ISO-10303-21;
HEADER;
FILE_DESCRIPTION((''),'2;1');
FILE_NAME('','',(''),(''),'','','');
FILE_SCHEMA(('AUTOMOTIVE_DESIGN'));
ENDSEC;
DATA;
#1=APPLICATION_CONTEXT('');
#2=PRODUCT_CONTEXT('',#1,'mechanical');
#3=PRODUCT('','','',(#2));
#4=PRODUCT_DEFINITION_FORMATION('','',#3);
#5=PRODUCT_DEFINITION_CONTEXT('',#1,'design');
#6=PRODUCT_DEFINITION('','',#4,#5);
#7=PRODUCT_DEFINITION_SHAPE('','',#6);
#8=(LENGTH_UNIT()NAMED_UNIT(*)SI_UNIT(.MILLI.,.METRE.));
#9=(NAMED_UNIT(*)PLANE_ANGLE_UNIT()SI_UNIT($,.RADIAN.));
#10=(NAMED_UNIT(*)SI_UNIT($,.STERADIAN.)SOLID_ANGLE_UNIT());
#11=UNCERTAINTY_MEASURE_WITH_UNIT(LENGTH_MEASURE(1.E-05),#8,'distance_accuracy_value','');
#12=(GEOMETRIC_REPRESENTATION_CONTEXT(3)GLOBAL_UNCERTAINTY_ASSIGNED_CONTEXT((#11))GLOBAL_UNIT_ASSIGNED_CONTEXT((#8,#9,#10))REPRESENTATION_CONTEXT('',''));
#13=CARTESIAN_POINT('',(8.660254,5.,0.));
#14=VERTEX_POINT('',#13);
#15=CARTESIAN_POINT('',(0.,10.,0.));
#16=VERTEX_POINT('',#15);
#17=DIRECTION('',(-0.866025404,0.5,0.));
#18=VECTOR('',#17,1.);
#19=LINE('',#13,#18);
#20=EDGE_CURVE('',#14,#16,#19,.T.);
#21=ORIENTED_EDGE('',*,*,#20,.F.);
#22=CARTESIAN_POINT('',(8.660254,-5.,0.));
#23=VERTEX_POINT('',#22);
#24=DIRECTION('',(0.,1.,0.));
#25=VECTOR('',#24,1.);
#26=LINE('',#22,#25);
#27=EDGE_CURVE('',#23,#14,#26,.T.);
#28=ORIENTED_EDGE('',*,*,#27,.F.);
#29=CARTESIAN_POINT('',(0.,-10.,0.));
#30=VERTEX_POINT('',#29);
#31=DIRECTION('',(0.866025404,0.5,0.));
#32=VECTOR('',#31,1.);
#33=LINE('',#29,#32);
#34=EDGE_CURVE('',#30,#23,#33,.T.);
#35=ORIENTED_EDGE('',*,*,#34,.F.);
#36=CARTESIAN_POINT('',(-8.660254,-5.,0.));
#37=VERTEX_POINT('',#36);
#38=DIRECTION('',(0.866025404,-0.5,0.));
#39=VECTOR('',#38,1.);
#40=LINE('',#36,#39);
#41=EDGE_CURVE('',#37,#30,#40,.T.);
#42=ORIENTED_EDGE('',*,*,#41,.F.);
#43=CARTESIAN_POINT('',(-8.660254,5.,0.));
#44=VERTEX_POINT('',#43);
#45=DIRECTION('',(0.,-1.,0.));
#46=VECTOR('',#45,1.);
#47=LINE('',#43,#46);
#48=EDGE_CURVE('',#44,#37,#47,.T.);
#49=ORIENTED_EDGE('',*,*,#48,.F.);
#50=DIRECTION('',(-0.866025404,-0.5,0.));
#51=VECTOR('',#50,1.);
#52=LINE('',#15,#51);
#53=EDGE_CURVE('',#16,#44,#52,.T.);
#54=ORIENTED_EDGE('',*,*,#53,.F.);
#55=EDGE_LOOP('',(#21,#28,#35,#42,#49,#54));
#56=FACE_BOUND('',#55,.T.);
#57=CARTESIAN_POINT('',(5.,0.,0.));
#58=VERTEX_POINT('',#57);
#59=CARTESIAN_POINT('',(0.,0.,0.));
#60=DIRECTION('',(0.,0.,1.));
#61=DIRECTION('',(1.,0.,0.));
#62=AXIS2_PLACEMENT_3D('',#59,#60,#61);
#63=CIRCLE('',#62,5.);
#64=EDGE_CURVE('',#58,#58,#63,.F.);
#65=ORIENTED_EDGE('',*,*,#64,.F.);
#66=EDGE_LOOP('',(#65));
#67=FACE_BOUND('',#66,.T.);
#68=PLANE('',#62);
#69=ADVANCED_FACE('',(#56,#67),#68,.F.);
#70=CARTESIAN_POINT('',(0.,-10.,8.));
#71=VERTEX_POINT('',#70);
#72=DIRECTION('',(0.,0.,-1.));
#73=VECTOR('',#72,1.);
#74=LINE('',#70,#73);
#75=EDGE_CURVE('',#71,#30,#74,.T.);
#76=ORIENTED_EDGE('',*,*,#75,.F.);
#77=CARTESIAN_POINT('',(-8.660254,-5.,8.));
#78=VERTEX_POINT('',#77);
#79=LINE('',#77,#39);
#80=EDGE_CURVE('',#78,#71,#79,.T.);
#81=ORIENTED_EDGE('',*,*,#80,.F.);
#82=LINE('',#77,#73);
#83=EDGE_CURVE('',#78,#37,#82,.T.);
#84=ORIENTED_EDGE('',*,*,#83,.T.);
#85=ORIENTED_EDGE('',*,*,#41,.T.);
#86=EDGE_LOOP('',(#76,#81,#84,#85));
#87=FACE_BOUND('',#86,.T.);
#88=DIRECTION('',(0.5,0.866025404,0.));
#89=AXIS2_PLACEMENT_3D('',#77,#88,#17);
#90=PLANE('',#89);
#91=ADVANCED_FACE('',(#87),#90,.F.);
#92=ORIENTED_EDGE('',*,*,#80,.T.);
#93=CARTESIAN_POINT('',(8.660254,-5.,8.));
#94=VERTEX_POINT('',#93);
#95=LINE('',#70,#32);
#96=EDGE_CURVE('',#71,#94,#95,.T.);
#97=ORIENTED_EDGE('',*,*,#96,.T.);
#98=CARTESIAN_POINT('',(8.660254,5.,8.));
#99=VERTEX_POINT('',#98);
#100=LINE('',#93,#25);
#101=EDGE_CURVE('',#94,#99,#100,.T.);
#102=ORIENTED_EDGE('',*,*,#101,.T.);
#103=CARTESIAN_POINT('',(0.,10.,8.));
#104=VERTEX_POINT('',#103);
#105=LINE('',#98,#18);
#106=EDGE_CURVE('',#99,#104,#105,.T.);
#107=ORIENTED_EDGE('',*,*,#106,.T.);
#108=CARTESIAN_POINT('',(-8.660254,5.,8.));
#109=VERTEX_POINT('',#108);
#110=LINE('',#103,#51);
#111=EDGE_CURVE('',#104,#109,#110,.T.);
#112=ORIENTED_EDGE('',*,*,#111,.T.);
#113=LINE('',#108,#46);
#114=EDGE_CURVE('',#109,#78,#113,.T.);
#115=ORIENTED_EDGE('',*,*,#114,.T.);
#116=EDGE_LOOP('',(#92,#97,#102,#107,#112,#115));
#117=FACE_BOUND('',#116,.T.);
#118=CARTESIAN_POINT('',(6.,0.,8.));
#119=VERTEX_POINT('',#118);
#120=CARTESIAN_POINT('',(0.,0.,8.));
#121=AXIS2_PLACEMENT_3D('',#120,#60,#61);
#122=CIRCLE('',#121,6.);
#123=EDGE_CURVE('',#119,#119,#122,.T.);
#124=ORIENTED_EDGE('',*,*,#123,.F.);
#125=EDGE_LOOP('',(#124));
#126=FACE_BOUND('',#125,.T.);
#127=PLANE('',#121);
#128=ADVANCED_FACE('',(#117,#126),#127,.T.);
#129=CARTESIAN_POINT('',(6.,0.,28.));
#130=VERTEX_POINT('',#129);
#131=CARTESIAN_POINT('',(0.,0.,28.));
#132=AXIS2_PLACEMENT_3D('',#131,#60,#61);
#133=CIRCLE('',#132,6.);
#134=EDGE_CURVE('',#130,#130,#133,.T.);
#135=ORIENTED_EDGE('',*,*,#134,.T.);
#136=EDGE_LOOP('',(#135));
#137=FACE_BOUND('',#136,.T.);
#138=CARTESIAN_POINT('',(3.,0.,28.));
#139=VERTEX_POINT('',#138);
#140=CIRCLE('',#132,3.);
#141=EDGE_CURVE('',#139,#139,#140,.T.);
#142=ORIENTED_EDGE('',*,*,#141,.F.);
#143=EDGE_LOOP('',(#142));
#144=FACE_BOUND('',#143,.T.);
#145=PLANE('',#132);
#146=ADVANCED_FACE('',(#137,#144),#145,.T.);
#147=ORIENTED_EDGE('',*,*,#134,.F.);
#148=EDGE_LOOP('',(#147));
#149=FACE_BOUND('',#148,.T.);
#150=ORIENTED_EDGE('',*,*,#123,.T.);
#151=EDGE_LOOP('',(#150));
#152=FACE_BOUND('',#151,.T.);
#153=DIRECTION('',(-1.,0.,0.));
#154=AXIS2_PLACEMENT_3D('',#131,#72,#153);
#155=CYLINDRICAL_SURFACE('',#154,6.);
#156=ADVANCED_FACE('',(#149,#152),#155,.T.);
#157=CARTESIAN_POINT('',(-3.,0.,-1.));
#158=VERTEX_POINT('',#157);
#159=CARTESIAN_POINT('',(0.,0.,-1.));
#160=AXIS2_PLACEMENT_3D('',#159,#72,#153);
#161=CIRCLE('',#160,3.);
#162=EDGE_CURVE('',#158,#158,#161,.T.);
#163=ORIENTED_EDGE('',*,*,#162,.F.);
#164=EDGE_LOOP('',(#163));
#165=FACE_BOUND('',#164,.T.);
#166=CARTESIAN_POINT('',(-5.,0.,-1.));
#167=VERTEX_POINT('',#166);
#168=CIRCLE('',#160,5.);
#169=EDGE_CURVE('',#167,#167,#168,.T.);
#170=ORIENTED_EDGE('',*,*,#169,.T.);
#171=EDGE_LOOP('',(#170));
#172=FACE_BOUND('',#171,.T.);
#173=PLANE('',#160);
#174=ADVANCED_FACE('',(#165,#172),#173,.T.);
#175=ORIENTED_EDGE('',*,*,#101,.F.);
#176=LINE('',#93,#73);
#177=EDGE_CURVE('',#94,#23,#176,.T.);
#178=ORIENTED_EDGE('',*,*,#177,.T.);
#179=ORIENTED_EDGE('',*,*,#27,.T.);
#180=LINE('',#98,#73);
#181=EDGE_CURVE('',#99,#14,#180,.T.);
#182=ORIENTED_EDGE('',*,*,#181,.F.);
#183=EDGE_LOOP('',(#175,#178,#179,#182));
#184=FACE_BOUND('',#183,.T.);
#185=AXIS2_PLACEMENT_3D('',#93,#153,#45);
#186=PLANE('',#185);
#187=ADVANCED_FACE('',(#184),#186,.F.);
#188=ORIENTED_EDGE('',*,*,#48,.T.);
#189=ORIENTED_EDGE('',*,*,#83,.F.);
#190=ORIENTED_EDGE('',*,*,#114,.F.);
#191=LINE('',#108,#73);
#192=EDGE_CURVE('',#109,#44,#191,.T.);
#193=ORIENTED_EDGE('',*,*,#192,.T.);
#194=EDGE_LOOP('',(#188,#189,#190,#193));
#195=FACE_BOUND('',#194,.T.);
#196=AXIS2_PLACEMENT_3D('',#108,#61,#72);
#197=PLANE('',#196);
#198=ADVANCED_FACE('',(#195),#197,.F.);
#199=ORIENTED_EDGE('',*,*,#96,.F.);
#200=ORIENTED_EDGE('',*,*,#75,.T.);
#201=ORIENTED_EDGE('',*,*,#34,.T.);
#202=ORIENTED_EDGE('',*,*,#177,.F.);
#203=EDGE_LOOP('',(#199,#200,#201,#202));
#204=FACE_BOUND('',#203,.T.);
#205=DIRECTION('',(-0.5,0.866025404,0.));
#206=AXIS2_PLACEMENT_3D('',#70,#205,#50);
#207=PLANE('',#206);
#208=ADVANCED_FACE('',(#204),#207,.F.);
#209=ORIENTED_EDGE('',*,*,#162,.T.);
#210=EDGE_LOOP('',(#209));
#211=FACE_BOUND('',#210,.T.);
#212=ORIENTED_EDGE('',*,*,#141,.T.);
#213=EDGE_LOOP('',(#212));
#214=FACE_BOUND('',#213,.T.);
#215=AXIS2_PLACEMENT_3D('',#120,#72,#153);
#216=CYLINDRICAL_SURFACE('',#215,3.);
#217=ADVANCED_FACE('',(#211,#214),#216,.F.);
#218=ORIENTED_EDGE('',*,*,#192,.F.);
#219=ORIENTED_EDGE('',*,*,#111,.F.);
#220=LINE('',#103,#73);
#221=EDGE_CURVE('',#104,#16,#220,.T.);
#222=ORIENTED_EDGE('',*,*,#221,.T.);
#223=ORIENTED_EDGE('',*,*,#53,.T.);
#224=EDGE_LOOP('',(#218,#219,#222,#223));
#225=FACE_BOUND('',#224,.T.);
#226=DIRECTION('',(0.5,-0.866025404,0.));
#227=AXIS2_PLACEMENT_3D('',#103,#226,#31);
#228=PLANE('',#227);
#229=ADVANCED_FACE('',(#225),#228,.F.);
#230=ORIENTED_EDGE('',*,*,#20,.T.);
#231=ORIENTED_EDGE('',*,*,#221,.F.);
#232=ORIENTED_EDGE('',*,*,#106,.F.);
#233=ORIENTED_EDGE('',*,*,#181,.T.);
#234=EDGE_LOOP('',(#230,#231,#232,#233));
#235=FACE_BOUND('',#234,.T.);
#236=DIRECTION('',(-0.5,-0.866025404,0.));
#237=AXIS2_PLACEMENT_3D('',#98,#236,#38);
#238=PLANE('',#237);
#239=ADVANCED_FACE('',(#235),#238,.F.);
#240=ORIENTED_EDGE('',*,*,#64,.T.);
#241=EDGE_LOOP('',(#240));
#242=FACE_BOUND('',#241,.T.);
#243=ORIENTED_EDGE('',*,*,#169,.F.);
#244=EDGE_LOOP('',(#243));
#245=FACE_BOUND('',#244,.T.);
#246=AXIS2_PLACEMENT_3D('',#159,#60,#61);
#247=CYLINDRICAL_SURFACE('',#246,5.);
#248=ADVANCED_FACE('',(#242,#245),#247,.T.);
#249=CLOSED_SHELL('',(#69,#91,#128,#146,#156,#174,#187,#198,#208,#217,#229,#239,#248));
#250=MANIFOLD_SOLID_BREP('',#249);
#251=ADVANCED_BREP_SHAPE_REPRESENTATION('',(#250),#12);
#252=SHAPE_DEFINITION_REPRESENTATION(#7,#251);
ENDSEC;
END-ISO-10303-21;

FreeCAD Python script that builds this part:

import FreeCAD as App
import Part
import Sketcher

V = App.Vector
Q = App.Units.Quantity


def add_polygon(sketch, points):
    """Adds a closed chain of lines whose ends are joined by coincident constraints."""
    first, n = sketch.GeometryCount, len(points)
    for a, b in zip(points, points[1:] + points[:1]):
        sketch.addGeometry(Part.LineSegment(App.Vector(*a, 0), App.Vector(*b, 0)), False)
    for i in range(n):
        sketch.addConstraint(Sketcher.Constraint("Coincident", first + i, 2, first + (i + 1) % n, 1))

doc = App.newDocument("Part")
body = doc.addObject("PartDesign::Body", "Body")

sketch1 = doc.addObject("Sketcher::SketchObject", "Sketch")
body.addObject(sketch1)
sketch1.AttachmentSupport = (doc.XY_Plane, [""])
sketch1.MapMode = "FlatFace"
add_polygon(sketch1, [(-8.7, 5), (-8.7, -5), (0, -10), (8.7, -5), (8.7, 5), (0, 10)])
sketch1.addGeometry(Part.Circle(V(0, 0, 0), V(0, 0, 1), 3), False)
sketch1.addConstraint([
    Sketcher.Constraint("Vertical", 0),
    Sketcher.Constraint("Vertical", 3),
    Sketcher.Constraint("Coincident", 6, 3, -1, 1),
    Sketcher.Constraint("Symmetric", 0, 2, 3, 2, -1, 1),
    Sketcher.Constraint("Symmetric", 1, 2, 4, 2, -1, 1),
    Sketcher.Constraint("PointOnObject", 1, 2, -2),
    Sketcher.Constraint("Parallel", 2, 5),
    Sketcher.Constraint("Horizontal", 0, 2, 2, 2),
    Sketcher.Constraint("Diameter", 6, 6.0),
    Sketcher.Constraint("DistanceY", 0, 2, 0, 1, 10.0),
    Sketcher.Constraint("Angle", 1, Q("-30 deg")),
    Sketcher.Constraint("Distance", 1, 10.0),
])
pad1 = doc.addObject("PartDesign::Pad", "Pad")
body.addObject(pad1)
pad1.Profile = sketch1
pad1.Length = 8

sketch2 = doc.addObject("Sketcher::SketchObject", "Sketch001")
body.addObject(sketch2)
sketch2.AttachmentSupport = (doc.XY_Plane, [""])
sketch2.MapMode = "FlatFace"
sketch2.addGeometry([
    Part.Circle(V(0, 0, 0), V(0, 0, 1), 5),
    Part.Circle(V(0, 0, 0), V(0, 0, 1), 3),
], False)
sketch2.addConstraint([
    Sketcher.Constraint("Coincident", 0, 3, -1, 1),
    Sketcher.Constraint("Coincident", 1, 3, -1, 1),
    Sketcher.Constraint("Diameter", 0, 10.0),
    Sketcher.Constraint("Diameter", 1, 6.0),
])
pad2 = doc.addObject("PartDesign::Pad", "Pad001")
body.addObject(pad2)
pad2.Profile = sketch2
pad2.Length = 1
pad2.Reversed = True

sketch3 = doc.addObject("Sketcher::SketchObject", "Sketch002")
body.addObject(sketch3)
sketch3.AttachmentSupport = (doc.XY_Plane, [""])
sketch3.MapMode = "FlatFace"
sketch3.AttachmentOffset = App.Placement(V(0, 0, 8), App.Rotation())
sketch3.addGeometry([
    Part.Circle(V(0, 0, 0), V(0, 0, 1), 6),
    Part.Circle(V(0, 0, 0), V(0, 0, 1), 3),
], False)
sketch3.addConstraint([
    Sketcher.Constraint("Coincident", 0, 3, -1, 1),
    Sketcher.Constraint("Coincident", 1, 3, -1, 1),
    Sketcher.Constraint("Diameter", 0, 12.0),
    Sketcher.Constraint("Diameter", 1, 6.0),
])
pad3 = doc.addObject("PartDesign::Pad", "Pad002")
body.addObject(pad3)
pad3.Profile = sketch3
pad3.Length = 20

doc.recompute()
